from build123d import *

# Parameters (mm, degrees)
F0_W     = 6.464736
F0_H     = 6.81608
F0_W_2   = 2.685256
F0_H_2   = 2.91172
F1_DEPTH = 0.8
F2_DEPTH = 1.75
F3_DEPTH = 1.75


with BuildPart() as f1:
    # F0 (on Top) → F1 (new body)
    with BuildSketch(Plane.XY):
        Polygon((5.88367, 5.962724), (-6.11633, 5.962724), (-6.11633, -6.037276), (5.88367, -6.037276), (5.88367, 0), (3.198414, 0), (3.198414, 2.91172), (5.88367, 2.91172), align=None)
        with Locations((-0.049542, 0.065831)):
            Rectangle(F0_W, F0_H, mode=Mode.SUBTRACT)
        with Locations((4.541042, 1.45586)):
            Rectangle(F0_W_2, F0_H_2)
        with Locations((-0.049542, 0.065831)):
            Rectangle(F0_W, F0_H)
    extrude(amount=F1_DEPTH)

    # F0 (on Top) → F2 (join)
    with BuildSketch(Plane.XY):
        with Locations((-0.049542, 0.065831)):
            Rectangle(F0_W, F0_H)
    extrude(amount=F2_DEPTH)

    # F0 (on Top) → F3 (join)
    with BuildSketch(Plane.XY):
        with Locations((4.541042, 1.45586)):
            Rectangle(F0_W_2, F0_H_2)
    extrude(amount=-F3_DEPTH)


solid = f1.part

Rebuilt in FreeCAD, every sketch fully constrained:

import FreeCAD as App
import Part
import Sketcher


def add_polygon(sketch, points):
    """Adds a closed chain of lines whose ends are joined by coincident constraints."""
    first, n = sketch.GeometryCount, len(points)
    for a, b in zip(points, points[1:] + points[:1]):
        sketch.addGeometry(Part.LineSegment(App.Vector(*a, 0), App.Vector(*b, 0)), False)
    for i in range(n):
        sketch.addConstraint(Sketcher.Constraint("Coincident", first + i, 2, first + (i + 1) % n, 1))

doc = App.newDocument("Part")
params = doc.addObject("Spreadsheet::Sheet", "Params")
for row, (alias, value) in enumerate([
    ("sketch1_width", "12 mm"),
    ("pad1_length", "0.8 mm"),
    ("pad2_length", "1.75 mm"),
    ("pad3_length", "1.75 mm"),
], start=1):
    params.set(f"A{row}", alias)
    params.set(f"B{row}", "=" + value)
    params.setAlias(f"B{row}", alias)

body = doc.addObject("PartDesign::Body", "Body")

# Sketch on XY plane
sketch1 = doc.addObject("Sketcher::SketchObject", "Sketch")
body.addObject(sketch1)
sketch1.AttachmentSupport = (doc.XY_Plane, [""])
sketch1.MapMode = "FlatFace"
add_polygon(sketch1, [(5.88367, 5.962724), (-6.11633, 5.962724), (-6.11633, -6.037276), (5.88367, -6.037276)])  # lines 0-3
sketch1.addConstraint([
    Sketcher.Constraint("Horizontal", 0),
    Sketcher.Constraint("Vertical", 1),
    Sketcher.Constraint("Horizontal", 2),
    Sketcher.Constraint("Vertical", 3),
    Sketcher.Constraint("Equal", 2, 1),
    Sketcher.Constraint("DistanceX", 0, 2, 0, 1, 12.0),
    Sketcher.Constraint("DistanceX", 0, 2, -1, 1, 6.11633),
    Sketcher.Constraint("DistanceY", -1, 1, 0, 2, 5.962724),
])
sketch1.setExpression("Constraints[9]", "Params.sketch1_width")
pad1 = doc.addObject("PartDesign::Pad", "Pad")
body.addObject(pad1)
pad1.Profile = sketch1
pad1.setExpression("Length", "Params.pad1_length")

# Sketch on XY plane
sketch2 = doc.addObject("Sketcher::SketchObject", "Sketch001")
body.addObject(sketch2)
sketch2.AttachmentSupport = (doc.XY_Plane, [""])
sketch2.MapMode = "FlatFace"
add_polygon(sketch2, [(-3.28191, 3.473871), (-3.28191, -3.342209), (3.182826, -3.342209), (3.182826, 3.473871)])  # lines 0-3
sketch2.addConstraint([
    Sketcher.Constraint("Vertical", 0),
    Sketcher.Constraint("Horizontal", 1),
    Sketcher.Constraint("Vertical", 2),
    Sketcher.Constraint("Horizontal", 3),
    Sketcher.Constraint("DistanceY", 0, 2, 0, 1, 6.81608),
    Sketcher.Constraint("DistanceX", 1, 1, 1, 2, 6.464736),
    Sketcher.Constraint("DistanceX", 0, 2, -1, 1, 3.28191),
    Sketcher.Constraint("DistanceY", 0, 2, -1, 1, 3.342209),
])
pad2 = doc.addObject("PartDesign::Pad", "Pad001")
body.addObject(pad2)
pad2.Profile = sketch2
pad2.setExpression("Length", "Params.pad2_length")

# Sketch on XY plane
sketch3 = doc.addObject("Sketcher::SketchObject", "Sketch002")
body.addObject(sketch3)
sketch3.AttachmentSupport = (doc.XY_Plane, [""])
sketch3.MapMode = "FlatFace"
add_polygon(sketch3, [(3.198414, 2.91172), (3.198414, 0), (5.88367, 0), (5.88367, 2.91172)])  # lines 0-3
sketch3.addConstraint([
    Sketcher.Constraint("Vertical", 0),
    Sketcher.Constraint("Horizontal", 1),
    Sketcher.Constraint("Vertical", 2),
    Sketcher.Constraint("Horizontal", 3),
    Sketcher.Constraint("PointOnObject", 0, 2, -1),
    Sketcher.Constraint("DistanceY", 0, 2, 0, 1, 2.91172),
    Sketcher.Constraint("DistanceX", 1, 1, 1, 2, 2.685256),
    Sketcher.Constraint("DistanceX", -1, 1, 1, 2, 5.88367),
])
pad3 = doc.addObject("PartDesign::Pad", "Pad002")
body.addObject(pad3)
pad3.Profile = sketch3
pad3.setExpression("Length", "Params.pad3_length")
pad3.Reversed = True

doc.recompute()
